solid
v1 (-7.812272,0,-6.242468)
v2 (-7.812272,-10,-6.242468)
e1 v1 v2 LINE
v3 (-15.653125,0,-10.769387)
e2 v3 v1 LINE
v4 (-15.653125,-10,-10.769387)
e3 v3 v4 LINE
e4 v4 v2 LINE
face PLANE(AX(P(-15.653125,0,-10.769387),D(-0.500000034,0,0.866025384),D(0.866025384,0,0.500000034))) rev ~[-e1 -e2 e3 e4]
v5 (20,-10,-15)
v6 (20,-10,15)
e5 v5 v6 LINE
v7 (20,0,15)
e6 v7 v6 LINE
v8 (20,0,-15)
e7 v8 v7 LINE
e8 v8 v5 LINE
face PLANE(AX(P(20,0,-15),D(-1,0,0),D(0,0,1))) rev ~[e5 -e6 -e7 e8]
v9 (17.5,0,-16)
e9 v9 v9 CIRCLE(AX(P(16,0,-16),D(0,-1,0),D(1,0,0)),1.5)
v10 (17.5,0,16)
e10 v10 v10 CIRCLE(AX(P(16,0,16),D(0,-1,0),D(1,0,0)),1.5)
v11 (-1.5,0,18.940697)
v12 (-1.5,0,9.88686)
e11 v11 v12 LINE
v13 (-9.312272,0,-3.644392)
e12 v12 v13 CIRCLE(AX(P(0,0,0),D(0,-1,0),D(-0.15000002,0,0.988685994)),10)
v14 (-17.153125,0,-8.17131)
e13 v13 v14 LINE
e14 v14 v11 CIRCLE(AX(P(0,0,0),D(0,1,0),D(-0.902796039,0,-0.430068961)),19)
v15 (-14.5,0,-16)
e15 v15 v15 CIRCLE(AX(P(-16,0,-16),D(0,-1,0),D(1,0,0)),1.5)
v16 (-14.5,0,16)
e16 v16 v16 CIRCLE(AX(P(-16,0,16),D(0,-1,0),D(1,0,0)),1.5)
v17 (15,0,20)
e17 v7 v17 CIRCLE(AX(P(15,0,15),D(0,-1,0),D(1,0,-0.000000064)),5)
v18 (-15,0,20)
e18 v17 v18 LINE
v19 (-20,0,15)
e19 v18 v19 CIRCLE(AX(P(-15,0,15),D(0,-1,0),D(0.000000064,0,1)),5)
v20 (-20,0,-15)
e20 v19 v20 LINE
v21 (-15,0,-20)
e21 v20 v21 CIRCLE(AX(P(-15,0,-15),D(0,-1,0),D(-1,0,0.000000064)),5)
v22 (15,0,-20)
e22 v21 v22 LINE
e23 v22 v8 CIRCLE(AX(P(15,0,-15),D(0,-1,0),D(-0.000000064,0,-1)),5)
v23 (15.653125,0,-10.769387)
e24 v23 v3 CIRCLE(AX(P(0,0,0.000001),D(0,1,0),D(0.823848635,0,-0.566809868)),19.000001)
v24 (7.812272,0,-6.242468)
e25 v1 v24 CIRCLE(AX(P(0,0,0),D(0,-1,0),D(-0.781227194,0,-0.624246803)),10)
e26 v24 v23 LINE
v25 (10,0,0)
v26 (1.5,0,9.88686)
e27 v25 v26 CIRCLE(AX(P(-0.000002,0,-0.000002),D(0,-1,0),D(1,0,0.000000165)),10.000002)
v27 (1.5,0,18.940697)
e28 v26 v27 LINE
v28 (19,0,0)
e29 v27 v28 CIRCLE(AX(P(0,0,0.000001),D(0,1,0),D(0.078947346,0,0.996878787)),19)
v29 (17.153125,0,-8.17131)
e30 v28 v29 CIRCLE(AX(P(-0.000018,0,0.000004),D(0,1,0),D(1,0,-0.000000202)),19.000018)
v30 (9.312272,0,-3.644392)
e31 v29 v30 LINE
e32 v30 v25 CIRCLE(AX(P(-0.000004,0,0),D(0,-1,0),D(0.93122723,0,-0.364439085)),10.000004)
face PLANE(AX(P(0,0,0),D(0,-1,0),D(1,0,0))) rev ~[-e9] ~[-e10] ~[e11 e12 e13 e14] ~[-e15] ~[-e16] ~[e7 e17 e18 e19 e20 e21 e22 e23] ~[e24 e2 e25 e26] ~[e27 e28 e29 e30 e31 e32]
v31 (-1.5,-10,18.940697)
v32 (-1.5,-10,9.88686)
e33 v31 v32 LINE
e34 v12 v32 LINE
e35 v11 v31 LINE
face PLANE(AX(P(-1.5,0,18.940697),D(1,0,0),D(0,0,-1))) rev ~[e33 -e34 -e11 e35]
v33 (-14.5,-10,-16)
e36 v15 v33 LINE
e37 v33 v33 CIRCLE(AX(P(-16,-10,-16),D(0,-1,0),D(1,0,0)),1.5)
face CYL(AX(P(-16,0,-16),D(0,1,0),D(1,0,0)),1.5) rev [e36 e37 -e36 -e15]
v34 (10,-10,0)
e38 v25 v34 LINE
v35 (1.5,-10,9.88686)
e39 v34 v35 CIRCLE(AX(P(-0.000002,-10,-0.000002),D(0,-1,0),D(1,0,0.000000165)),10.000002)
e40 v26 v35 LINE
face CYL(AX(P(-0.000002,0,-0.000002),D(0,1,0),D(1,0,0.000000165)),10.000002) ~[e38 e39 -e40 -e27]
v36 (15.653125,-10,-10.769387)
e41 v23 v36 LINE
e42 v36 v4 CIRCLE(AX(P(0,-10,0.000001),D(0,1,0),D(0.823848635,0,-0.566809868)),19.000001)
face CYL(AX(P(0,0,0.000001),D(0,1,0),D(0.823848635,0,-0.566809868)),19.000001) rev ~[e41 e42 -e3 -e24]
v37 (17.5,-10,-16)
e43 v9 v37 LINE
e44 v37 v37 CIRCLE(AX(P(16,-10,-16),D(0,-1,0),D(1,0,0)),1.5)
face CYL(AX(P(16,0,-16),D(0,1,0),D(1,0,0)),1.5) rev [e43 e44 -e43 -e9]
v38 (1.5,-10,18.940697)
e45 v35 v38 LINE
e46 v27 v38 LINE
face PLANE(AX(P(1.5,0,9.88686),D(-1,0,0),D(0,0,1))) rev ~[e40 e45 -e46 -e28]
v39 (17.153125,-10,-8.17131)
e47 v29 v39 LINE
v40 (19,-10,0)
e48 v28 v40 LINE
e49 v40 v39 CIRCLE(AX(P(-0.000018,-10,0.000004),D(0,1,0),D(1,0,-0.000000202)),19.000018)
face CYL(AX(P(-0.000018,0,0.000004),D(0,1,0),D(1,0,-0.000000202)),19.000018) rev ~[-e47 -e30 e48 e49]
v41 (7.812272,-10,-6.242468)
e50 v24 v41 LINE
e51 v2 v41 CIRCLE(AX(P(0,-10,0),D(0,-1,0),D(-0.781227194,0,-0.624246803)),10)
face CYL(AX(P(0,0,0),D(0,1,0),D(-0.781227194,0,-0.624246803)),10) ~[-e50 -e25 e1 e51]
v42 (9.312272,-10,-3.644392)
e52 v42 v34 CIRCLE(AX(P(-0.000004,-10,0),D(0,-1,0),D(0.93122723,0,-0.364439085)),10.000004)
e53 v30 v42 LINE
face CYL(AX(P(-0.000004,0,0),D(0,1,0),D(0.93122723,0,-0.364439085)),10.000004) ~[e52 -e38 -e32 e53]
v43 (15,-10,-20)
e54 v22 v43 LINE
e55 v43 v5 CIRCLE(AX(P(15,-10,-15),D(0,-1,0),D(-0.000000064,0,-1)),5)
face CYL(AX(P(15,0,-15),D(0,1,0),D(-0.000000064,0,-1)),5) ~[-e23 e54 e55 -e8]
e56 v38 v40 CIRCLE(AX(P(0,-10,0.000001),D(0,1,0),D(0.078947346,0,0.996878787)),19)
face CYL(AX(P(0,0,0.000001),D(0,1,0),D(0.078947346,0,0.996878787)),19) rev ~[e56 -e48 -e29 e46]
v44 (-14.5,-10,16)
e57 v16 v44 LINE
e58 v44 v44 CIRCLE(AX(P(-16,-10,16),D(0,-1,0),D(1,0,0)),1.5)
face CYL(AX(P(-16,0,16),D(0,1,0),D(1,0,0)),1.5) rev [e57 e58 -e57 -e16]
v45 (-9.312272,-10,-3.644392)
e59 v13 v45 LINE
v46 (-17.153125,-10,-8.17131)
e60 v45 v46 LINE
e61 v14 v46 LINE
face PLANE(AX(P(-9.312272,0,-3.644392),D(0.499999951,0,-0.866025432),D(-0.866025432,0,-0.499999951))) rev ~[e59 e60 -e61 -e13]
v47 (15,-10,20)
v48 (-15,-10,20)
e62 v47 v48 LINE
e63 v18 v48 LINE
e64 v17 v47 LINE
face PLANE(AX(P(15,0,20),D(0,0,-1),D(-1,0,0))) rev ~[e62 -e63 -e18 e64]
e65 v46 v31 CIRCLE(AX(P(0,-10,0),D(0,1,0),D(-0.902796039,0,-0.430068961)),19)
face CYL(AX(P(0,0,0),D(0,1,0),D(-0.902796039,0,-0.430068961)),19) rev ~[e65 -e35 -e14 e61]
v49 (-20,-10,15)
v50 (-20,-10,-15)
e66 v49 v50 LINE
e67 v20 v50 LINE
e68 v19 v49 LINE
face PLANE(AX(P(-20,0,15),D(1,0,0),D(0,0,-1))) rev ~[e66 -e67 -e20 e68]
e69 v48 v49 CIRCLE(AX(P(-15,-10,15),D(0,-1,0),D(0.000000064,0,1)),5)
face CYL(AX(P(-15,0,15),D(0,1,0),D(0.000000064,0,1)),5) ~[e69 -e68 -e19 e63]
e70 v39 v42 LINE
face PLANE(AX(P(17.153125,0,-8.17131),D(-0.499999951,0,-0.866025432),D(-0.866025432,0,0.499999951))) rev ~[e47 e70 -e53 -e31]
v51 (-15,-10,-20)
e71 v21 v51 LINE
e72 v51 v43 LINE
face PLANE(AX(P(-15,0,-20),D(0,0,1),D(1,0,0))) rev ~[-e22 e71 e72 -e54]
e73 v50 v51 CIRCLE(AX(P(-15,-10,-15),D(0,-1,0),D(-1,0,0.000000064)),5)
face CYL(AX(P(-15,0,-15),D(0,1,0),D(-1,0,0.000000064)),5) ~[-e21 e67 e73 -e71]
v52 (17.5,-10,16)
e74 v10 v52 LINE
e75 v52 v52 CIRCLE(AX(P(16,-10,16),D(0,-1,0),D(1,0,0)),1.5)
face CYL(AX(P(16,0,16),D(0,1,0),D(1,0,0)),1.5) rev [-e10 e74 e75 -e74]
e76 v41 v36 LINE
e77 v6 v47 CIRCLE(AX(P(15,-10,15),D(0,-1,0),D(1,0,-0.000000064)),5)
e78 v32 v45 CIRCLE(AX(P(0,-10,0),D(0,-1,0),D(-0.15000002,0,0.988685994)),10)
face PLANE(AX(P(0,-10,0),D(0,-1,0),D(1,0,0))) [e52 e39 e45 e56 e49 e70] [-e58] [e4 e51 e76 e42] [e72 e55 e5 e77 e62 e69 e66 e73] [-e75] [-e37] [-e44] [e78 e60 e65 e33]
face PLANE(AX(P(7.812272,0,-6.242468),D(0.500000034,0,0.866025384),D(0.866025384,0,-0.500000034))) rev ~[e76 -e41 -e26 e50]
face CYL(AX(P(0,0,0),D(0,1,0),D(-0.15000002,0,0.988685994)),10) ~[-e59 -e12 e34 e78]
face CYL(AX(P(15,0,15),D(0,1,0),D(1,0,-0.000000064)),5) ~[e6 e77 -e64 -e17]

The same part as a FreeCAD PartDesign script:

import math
import FreeCAD as App
import Part
import Sketcher
from FreeCAD import Vector
Q = App.Units.Quantity

doc = App.newDocument("Part")
body = doc.addObject("PartDesign::Body", "Body")

# Sketch on XZ plane
sketch1 = body.newObject("Sketcher::SketchObject", "Sketch")
sketch1.AttachmentSupport = (doc.getObject("XZ_Plane"), [""])
sketch1.MapMode = "FlatFace"
sketch1.addGeometry([
    Part.LineSegment(Vector(-15, -20, 0), Vector(15, -20, 0)),  # 0
    Part.ArcOfCircle(Part.Circle(Vector(15, -15, 0), Vector(0, 0, 1), 5), math.radians(-90), math.radians(0)),  # 1
    Part.LineSegment(Vector(20, -15, 0), Vector(20, 15, 0)),  # 2
    Part.ArcOfCircle(Part.Circle(Vector(15, 15, 0), Vector(0, 0, 1), 5), math.radians(0), math.radians(90)),  # 3
    Part.LineSegment(Vector(15, 20, 0), Vector(-15, 20, 0)),  # 4
    Part.ArcOfCircle(Part.Circle(Vector(-15, 15, 0), Vector(0, 0, 1), 5), math.radians(90), math.radians(180)),  # 5
    Part.LineSegment(Vector(-20, 15, 0), Vector(-20, -15, 0)),  # 6
    Part.ArcOfCircle(Part.Circle(Vector(-15, -15, 0), Vector(0, 0, 1), 5), math.radians(180), math.radians(270)),  # 7
    Part.Circle(Vector(-16, -16, 0), Vector(0, 0, 1), 1.5),  # 8
    Part.Circle(Vector(16, -16, 0), Vector(0, 0, 1), 1.5),  # 9
    Part.Circle(Vector(-16, 16, 0), Vector(0, 0, 1), 1.5),  # 10
    Part.ArcOfCircle(Part.Circle(Vector(0, 0, 0), Vector(0, 0, 1), 19), math.radians(95), math.radians(205)),  # 11
    Part.LineSegment(Vector(-1.5, 18.9, 0), Vector(-1.5, 9.9, 0)),  # 12
    Part.ArcOfCircle(Part.Circle(Vector(0, 0, 0), Vector(0, 0, 1), 10), math.radians(99), math.radians(201)),  # 13
    Part.LineSegment(Vector(-9.3, -3.6, 0), Vector(-17.2, -8.2, 0)),  # 14
    Part.LineSegment(Vector(1.5, 9.9, 0), Vector(1.5, 18.9, 0)),  # 15
    Part.ArcOfCircle(Part.Circle(Vector(0, 0, 0), Vector(0, 0, 1), 19), math.radians(0), math.radians(85)),  # 16
    Part.ArcOfCircle(Part.Circle(Vector(0, 0, 0), Vector(0, 0, 1), 19), math.radians(-25), math.radians(0)),  # 17
    Part.LineSegment(Vector(17.2, -8.2, 0), Vector(9.3, -3.6, 0)),  # 18
    Part.ArcOfCircle(Part.Circle(Vector(0, 0, 0), Vector(0, 0, 1), 10), math.radians(-21), math.radians(0)),  # 19
    Part.ArcOfCircle(Part.Circle(Vector(0, 0, 0), Vector(0, 0, 1), 10), math.radians(0), math.radians(81)),  # 20
    Part.LineSegment(Vector(7.8, -6.2, 0), Vector(15.7, -10.8, 0)),  # 21
    Part.ArcOfCircle(Part.Circle(Vector(0, 0, 0), Vector(0, 0, 1), 19), math.radians(-145), math.radians(-35)),  # 22
    Part.LineSegment(Vector(-15.7, -10.8, 0), Vector(-7.8, -6.2, 0)),  # 23
    Part.ArcOfCircle(Part.Circle(Vector(0, 0, 0), Vector(0, 0, 1), 10), math.radians(-141), math.radians(-39)),  # 24
    Part.Circle(Vector(16, 16, 0), Vector(0, 0, 1), 1.5),  # 25
], False)
sketch1.addConstraint([
    Sketcher.Constraint("Tangent", 0, 2, 1, 1),
    Sketcher.Constraint("Tangent", 1, 2, 2, 1),
    Sketcher.Constraint("Tangent", 2, 2, 3, 1),
    Sketcher.Constraint("Tangent", 3, 2, 4, 1),
    Sketcher.Constraint("Tangent", 4, 2, 5, 1),
    Sketcher.Constraint("Tangent", 5, 2, 6, 1),
    Sketcher.Constraint("Tangent", 6, 2, 7, 1),
    Sketcher.Constraint("Tangent", 7, 2, 0, 1),
    Sketcher.Constraint("Coincident", 11, 1, 12, 1),
    Sketcher.Constraint("Coincident", 12, 2, 13, 1),
    Sketcher.Constraint("Coincident", 13, 2, 14, 1),
    Sketcher.Constraint("Coincident", 14, 2, 11, 2),
    Sketcher.Constraint("Coincident", 15, 2, 16, 2),
    Sketcher.Constraint("Tangent", 16, 1, 17, 2),
    Sketcher.Constraint("Coincident", 17, 1, 18, 1),
    Sketcher.Constraint("Coincident", 18, 2, 19, 1),
    Sketcher.Constraint("Tangent", 19, 2, 20, 1),
    Sketcher.Constraint("Coincident", 20, 2, 15, 1),
    Sketcher.Constraint("Coincident", 21, 2, 22, 2),
    Sketcher.Constraint("Coincident", 22, 1, 23, 1),
    Sketcher.Constraint("Coincident", 23, 2, 24, 1),
    Sketcher.Constraint("Coincident", 24, 2, 21, 1),
    Sketcher.Constraint("Horizontal", 0),
    Sketcher.Constraint("Vertical", 2),
    Sketcher.Constraint("Horizontal", 4),
    Sketcher.Constraint("Vertical", 6),
    Sketcher.Constraint("Vertical", 12),
    Sketcher.Constraint("Vertical", 15),
    Sketcher.Constraint("Coincident", 11, 3, -1, 1),
    Sketcher.Constraint("Coincident", 13, 3, -1, 1),
    Sketcher.Constraint("Coincident", 16, 3, -1, 1),
    Sketcher.Constraint("Coincident", 19, 3, -1, 1),
    Sketcher.Constraint("Coincident", 22, 3, -1, 1),
    Sketcher.Constraint("Coincident", 24, 3, -1, 1),
    Sketcher.Constraint("Equal", 1, 3),
    Sketcher.Constraint("Equal", 3, 5),
    Sketcher.Constraint("Equal", 5, 7),
    Sketcher.Constraint("Equal", 8, 9),
    Sketcher.Constraint("Equal", 9, 10),
    Sketcher.Constraint("Equal", 11, 16),
    Sketcher.Constraint("Equal", 13, 20),
    Sketcher.Constraint("Equal", 16, 22),
    Sketcher.Constraint("Equal", 20, 24),
    Sketcher.Constraint("Equal", 10, 25),
    Sketcher.Constraint("Symmetric", 1, 3, 5, 3, -1, 1),
    Sketcher.Constraint("Symmetric", 9, 3, 10, 3, -1, 1),
    Sketcher.Constraint("Symmetric", 8, 3, 25, 3, -1, 1),
    Sketcher.Constraint("Symmetric", 8, 3, 9, 3, -2),
    Sketcher.Constraint("Symmetric", 14, 2, 17, 1, -2),
    Sketcher.Constraint("Symmetric", 13, 2, 18, 2, -2),
    Sketcher.Constraint("PointOnObject", 16, 1, -1),
    Sketcher.Constraint("PointOnObject", 19, 2, -1),
    Sketcher.Constraint("Parallel", 18, 21),
    Sketcher.Constraint("Parallel", 14, 23),
    Sketcher.Constraint("Horizontal", 11, 1, 15, 2),
    Sketcher.Constraint("Horizontal", 21, 2, 22, 1),
    Sketcher.Constraint("Equal", 4, 2),
    Sketcher.Constraint("Equal", 18, 21),
    Sketcher.Constraint("Diameter", 8, Q("3 mm")),
    Sketcher.Constraint("Radius", 1, Q("5 mm")),
    Sketcher.Constraint("Radius", 11, Q("19 mm")),
    Sketcher.Constraint("Radius", 13, Q("10 mm")),
    Sketcher.Constraint("DistanceX", 0, 1, 0, 2, Q("30 mm")),
    Sketcher.Constraint("Angle", 14, Q("-150.000003 deg")),
    Sketcher.Constraint("DistanceX", 8, 3, -1, 1, Q("16 mm")),
    Sketcher.Constraint("DistanceY", 8, 3, -1, 1, Q("16 mm")),
    Sketcher.Constraint("DistanceX", 11, 1, 15, 2, Q("3 mm")),
    Sketcher.Constraint("DistanceX", 21, 2, 17, 1, Q("1.5 mm")),
])
pad1 = body.newObject("PartDesign::Pad", "Pad")
pad1.Profile = sketch1
pad1.Length = 10

doc.recompute()
